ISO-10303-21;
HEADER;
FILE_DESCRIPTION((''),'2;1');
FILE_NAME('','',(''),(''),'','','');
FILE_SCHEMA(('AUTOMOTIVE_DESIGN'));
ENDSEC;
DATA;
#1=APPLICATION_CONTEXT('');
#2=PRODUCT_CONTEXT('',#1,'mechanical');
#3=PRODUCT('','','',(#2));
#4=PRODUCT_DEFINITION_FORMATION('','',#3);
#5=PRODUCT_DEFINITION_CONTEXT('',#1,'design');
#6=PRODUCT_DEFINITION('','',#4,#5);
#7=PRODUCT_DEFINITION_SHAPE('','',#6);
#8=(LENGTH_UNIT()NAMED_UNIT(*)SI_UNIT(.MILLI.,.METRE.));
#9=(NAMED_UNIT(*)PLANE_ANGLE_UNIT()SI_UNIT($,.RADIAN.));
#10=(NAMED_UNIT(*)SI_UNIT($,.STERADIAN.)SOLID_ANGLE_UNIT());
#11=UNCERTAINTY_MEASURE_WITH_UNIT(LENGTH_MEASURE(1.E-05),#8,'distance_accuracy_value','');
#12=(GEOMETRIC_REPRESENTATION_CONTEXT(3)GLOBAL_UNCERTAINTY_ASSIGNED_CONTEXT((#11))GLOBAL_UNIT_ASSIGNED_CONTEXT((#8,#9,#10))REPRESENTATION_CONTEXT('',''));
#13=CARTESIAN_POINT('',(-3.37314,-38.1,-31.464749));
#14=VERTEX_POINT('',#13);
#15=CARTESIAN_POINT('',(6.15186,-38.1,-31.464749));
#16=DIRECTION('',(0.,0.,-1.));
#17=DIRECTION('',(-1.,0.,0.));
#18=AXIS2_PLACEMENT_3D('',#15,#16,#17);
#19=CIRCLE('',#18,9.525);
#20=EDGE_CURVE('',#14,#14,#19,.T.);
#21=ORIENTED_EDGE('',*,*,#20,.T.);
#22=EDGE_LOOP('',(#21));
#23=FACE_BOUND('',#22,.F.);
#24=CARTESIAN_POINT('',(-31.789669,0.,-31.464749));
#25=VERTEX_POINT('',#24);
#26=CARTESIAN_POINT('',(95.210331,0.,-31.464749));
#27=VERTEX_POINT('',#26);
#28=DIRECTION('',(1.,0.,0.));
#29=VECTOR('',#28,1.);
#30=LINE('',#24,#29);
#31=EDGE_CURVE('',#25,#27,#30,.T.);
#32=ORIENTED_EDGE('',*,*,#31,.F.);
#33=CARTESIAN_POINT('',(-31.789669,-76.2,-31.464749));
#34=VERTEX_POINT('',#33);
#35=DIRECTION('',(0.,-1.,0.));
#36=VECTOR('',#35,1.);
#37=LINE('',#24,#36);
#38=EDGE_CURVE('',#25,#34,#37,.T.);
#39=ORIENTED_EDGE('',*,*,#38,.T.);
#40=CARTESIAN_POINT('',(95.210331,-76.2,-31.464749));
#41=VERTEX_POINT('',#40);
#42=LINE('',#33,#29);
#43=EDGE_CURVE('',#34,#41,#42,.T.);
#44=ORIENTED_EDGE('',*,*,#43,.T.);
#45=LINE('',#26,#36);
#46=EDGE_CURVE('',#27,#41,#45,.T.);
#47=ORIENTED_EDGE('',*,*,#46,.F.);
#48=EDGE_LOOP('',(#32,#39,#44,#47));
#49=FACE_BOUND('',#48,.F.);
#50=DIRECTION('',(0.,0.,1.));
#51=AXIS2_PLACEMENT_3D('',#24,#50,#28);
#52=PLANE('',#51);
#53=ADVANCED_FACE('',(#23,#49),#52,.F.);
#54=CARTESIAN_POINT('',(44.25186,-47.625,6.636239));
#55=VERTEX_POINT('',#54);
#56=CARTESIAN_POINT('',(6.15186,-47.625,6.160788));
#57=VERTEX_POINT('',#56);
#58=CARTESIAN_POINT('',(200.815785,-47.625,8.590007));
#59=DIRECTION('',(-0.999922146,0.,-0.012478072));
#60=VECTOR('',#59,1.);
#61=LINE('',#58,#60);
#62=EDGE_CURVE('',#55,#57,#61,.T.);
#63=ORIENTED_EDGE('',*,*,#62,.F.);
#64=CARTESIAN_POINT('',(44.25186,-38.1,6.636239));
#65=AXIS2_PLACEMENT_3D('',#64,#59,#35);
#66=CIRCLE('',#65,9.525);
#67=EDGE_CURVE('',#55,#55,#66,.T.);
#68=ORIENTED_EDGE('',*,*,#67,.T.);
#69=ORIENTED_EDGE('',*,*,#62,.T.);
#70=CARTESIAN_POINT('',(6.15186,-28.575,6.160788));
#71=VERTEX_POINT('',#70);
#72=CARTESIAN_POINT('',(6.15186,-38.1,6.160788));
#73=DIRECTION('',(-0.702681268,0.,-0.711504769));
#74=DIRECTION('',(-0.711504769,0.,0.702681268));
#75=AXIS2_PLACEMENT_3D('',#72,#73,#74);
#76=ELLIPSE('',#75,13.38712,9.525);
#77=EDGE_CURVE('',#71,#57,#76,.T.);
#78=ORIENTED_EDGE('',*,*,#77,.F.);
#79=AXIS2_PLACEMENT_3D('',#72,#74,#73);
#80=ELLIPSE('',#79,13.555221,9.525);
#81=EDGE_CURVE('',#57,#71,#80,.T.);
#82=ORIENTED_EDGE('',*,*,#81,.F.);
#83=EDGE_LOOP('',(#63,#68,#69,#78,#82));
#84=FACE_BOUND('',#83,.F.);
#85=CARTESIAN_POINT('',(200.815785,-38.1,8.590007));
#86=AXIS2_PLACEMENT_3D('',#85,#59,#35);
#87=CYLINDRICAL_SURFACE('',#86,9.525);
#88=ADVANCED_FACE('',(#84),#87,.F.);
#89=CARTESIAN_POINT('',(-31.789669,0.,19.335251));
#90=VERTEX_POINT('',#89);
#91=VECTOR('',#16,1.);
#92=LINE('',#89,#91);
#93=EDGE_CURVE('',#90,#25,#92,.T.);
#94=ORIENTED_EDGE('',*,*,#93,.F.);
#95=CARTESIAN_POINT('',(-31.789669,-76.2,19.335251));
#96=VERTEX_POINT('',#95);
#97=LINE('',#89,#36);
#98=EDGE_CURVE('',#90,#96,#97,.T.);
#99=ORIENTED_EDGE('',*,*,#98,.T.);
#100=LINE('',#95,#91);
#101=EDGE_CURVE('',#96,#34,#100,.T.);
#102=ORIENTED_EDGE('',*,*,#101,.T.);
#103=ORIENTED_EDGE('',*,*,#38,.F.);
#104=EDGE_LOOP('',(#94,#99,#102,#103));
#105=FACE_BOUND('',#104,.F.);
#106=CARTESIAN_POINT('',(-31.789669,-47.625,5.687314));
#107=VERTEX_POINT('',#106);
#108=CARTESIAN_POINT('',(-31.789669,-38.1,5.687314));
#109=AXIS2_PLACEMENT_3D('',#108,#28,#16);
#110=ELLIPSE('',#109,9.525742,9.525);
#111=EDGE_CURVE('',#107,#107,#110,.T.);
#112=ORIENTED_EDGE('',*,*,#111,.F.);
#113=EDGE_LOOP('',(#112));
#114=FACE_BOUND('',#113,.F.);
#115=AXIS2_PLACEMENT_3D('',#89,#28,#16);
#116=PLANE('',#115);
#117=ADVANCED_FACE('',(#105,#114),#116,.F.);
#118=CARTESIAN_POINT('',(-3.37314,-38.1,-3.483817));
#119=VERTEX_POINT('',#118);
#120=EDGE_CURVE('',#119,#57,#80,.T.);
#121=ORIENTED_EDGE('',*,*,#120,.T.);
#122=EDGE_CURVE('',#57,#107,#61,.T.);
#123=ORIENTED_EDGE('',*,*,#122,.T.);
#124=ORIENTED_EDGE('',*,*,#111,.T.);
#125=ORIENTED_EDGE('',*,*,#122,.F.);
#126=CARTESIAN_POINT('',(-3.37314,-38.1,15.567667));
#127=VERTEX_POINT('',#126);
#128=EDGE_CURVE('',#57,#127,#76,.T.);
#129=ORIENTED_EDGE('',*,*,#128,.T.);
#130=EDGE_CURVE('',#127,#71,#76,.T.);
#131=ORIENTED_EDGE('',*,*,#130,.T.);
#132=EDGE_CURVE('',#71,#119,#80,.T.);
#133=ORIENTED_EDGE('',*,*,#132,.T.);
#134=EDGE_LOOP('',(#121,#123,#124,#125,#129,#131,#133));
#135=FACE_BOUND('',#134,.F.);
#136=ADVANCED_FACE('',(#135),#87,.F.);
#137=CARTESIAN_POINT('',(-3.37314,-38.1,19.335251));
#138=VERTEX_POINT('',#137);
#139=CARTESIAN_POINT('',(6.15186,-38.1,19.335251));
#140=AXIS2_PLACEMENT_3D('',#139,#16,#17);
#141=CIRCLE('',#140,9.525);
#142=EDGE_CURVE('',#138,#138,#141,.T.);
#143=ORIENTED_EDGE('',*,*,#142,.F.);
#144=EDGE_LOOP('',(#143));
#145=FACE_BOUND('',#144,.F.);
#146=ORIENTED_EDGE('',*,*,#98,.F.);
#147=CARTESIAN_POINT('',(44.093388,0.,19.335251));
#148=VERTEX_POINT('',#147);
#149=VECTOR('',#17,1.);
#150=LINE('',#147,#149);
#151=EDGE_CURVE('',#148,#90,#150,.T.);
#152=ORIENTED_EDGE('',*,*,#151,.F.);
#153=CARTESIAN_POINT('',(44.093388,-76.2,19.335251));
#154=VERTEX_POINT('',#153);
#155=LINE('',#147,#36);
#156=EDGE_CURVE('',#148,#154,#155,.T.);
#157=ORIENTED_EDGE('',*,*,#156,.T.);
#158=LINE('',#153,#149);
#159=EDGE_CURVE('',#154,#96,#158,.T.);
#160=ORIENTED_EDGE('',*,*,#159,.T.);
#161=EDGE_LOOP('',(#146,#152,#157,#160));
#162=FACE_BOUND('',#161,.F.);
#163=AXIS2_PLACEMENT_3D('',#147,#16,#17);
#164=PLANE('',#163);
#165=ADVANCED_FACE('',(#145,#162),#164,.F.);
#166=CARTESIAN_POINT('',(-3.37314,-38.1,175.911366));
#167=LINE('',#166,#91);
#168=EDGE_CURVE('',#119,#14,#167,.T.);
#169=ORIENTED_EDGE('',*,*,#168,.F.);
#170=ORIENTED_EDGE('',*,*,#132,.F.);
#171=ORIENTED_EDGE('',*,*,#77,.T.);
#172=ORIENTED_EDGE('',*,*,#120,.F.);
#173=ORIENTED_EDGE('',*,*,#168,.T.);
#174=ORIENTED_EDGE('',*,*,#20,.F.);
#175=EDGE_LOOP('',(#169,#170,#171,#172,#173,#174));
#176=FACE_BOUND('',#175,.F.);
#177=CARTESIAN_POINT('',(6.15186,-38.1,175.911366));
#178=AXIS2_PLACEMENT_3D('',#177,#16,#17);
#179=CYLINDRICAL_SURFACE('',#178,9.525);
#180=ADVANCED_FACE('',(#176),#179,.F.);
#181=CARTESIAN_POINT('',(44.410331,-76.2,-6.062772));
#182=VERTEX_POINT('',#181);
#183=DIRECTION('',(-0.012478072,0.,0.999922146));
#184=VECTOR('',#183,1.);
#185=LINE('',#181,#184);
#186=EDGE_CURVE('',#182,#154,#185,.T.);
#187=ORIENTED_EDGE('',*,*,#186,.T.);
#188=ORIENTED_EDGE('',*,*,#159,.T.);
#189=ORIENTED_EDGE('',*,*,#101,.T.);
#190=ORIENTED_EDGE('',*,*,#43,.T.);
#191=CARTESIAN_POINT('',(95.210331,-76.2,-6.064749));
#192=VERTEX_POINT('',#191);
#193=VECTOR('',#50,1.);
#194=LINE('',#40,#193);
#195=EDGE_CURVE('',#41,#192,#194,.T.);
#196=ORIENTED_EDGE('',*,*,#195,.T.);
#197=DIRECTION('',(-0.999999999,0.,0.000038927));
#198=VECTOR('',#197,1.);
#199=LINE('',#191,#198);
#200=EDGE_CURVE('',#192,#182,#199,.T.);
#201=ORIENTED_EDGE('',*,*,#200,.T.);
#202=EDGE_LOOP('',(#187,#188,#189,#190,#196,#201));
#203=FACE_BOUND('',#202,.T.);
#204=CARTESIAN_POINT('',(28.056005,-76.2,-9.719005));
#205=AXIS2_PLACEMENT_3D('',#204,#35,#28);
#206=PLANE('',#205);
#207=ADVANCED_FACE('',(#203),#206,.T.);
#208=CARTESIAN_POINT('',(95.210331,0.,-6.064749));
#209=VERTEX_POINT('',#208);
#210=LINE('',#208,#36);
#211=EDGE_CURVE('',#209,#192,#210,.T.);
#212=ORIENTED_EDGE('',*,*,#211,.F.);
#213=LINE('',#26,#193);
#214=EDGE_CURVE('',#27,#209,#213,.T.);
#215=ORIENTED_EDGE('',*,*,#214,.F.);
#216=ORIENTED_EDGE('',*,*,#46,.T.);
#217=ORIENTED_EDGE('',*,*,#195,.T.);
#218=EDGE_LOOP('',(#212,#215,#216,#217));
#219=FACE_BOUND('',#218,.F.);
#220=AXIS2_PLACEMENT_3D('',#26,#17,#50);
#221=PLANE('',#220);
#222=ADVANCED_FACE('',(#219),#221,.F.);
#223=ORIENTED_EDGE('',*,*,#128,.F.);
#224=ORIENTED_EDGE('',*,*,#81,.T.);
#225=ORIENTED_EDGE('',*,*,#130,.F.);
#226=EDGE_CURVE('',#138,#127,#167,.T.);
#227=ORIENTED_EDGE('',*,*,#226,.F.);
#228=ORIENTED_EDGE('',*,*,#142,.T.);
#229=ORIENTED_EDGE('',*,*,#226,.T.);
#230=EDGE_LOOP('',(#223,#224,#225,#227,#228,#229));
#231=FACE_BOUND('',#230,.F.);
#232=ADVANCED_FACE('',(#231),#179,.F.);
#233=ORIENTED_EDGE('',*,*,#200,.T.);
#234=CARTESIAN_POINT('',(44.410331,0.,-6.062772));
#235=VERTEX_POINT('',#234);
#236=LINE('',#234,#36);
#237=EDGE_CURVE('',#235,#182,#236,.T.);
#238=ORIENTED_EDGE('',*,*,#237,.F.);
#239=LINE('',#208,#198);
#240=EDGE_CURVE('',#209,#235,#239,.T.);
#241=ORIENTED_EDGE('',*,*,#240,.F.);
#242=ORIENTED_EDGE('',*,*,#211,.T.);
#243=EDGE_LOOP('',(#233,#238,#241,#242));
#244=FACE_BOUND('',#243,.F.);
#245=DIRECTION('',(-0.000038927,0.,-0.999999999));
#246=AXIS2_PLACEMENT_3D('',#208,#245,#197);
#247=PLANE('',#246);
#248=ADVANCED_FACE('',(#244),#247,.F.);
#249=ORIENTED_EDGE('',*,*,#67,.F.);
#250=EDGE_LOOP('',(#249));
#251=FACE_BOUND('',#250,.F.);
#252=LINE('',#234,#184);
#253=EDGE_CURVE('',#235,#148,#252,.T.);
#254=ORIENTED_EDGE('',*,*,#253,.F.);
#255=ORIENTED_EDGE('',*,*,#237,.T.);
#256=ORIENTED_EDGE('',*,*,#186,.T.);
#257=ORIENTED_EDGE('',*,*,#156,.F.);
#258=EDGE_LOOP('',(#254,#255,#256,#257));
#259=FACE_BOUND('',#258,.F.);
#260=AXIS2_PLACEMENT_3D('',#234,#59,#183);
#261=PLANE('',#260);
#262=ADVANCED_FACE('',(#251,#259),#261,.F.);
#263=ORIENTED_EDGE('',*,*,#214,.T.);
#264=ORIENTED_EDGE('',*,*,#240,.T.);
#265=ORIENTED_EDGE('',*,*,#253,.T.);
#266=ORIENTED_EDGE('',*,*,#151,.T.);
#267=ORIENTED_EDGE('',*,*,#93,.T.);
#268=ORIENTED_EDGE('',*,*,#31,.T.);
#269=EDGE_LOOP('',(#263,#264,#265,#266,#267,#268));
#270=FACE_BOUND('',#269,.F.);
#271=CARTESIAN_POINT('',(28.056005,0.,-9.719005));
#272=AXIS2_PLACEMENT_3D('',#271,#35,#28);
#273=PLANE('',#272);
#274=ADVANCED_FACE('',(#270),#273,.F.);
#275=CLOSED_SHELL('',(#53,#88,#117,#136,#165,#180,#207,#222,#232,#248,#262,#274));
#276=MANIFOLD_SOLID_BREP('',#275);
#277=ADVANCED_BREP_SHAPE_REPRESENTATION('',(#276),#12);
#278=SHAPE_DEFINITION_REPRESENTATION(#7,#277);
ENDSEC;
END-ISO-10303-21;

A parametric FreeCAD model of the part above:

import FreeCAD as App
import Part
import Sketcher

V = App.Vector
Q = App.Units.Quantity


def add_polygon(sketch, points):
    """Adds a closed chain of lines whose ends are joined by coincident constraints."""
    first, n = sketch.GeometryCount, len(points)
    for a, b in zip(points, points[1:] + points[:1]):
        sketch.addGeometry(Part.LineSegment(App.Vector(*a, 0), App.Vector(*b, 0)), False)
    for i in range(n):
        sketch.addConstraint(Sketcher.Constraint("Coincident", first + i, 2, first + (i + 1) % n, 1))

doc = App.newDocument("Part")
body = doc.addObject("PartDesign::Body", "Body")

# Sketch on XZ plane
sketch1 = body.newObject("Sketcher::SketchObject", "Sketch")
sketch1.AttachmentSupport = (doc.getObject("XZ_Plane"), [""])
sketch1.MapMode = "FlatFace"
add_polygon(sketch1, [(-32, 19), (-32, -31), (95, -31), (95, -6), (44, -6), (44, 19)])  # lines 0-5
sketch1.addConstraint([
    Sketcher.Constraint("Vertical", 0),
    Sketcher.Constraint("Horizontal", 1),
    Sketcher.Constraint("Vertical", 2),
    Sketcher.Constraint("Horizontal", 5),
    Sketcher.Constraint("DistanceX", 1, 1, 1, 2, Q("5 in")),
    Sketcher.Constraint("DistanceY", 0, 2, 0, 1, Q("2 in")),
    Sketcher.Constraint("DistanceY", 2, 1, 2, 2, Q("1 in")),
    Sketcher.Constraint("Distance", 3, Q("2 in")),
    Sketcher.Constraint("Distance", 4, Q("1 in")),
    Sketcher.Constraint("DistanceX", 5, 2, 5, 1, 75.883057),
    Sketcher.Constraint("DistanceX", 0, 2, -1, 1, 31.789669),
    Sketcher.Constraint("DistanceY", 0, 2, -1, 1, 31.464749),
])
pad1 = body.newObject("PartDesign::Pad", "Pad")
pad1.Profile = sketch1
pad1.Length = Q("3 in")

# Sketch on an angled plane
sketch2 = body.newObject("Sketcher::SketchObject", "Sketch001")
sketch2.Placement = App.Placement(V(44.327771, 0, 0.553168), App.Rotation(V(0, 1, 0), V(-0.012478072, 0, 0.999922146), V(0.999922146, 0, 0.012478072), "ZXY"))
sketch2.addGeometry(Part.Circle(V(-38, 6, 0), V(0, 0, 1), 10), False)
sketch2.addConstraint([
    Sketcher.Constraint("Diameter", 0, Q("0.75 in")),
    Sketcher.Constraint("DistanceX", 0, 3, -1, 1, Q("1.5 in")),
    Sketcher.Constraint("DistanceY", -1, 1, 0, 3, 6.083545),
])
doc.recompute()
hole = body.newObject("PartDesign::Hole", "Hole")
hole.Profile = sketch2
hole.ThreadType = "None"
hole.Diameter = Q("0.75 in")
hole.DepthType = "ThroughAll"

# Sketch on XY plane
sketch3 = body.newObject("Sketcher::SketchObject", "Sketch002")
sketch3.AttachmentSupport = (doc.getObject("XY_Plane"), [""])
sketch3.MapMode = "FlatFace"
sketch3.AttachmentOffset = App.Placement(V(0, 0, 19.335251), App.Rotation())
sketch3.addGeometry(Part.Circle(V(6, -38, 0), V(0, 0, 1), 10), False)
sketch3.addConstraint([
    Sketcher.Constraint("Diameter", 0, Q("0.75 in")),
    Sketcher.Constraint("DistanceY", 0, 3, -1, 1, Q("1.5 in")),
    Sketcher.Constraint("DistanceX", -1, 1, 0, 3, 6.15186),
])
doc.recompute()
hole2 = body.newObject("PartDesign::Hole", "Hole001")
hole2.Profile = sketch3
hole2.ThreadType = "None"
hole2.Diameter = Q("0.75 in")
hole2.DepthType = "ThroughAll"

doc.recompute()
